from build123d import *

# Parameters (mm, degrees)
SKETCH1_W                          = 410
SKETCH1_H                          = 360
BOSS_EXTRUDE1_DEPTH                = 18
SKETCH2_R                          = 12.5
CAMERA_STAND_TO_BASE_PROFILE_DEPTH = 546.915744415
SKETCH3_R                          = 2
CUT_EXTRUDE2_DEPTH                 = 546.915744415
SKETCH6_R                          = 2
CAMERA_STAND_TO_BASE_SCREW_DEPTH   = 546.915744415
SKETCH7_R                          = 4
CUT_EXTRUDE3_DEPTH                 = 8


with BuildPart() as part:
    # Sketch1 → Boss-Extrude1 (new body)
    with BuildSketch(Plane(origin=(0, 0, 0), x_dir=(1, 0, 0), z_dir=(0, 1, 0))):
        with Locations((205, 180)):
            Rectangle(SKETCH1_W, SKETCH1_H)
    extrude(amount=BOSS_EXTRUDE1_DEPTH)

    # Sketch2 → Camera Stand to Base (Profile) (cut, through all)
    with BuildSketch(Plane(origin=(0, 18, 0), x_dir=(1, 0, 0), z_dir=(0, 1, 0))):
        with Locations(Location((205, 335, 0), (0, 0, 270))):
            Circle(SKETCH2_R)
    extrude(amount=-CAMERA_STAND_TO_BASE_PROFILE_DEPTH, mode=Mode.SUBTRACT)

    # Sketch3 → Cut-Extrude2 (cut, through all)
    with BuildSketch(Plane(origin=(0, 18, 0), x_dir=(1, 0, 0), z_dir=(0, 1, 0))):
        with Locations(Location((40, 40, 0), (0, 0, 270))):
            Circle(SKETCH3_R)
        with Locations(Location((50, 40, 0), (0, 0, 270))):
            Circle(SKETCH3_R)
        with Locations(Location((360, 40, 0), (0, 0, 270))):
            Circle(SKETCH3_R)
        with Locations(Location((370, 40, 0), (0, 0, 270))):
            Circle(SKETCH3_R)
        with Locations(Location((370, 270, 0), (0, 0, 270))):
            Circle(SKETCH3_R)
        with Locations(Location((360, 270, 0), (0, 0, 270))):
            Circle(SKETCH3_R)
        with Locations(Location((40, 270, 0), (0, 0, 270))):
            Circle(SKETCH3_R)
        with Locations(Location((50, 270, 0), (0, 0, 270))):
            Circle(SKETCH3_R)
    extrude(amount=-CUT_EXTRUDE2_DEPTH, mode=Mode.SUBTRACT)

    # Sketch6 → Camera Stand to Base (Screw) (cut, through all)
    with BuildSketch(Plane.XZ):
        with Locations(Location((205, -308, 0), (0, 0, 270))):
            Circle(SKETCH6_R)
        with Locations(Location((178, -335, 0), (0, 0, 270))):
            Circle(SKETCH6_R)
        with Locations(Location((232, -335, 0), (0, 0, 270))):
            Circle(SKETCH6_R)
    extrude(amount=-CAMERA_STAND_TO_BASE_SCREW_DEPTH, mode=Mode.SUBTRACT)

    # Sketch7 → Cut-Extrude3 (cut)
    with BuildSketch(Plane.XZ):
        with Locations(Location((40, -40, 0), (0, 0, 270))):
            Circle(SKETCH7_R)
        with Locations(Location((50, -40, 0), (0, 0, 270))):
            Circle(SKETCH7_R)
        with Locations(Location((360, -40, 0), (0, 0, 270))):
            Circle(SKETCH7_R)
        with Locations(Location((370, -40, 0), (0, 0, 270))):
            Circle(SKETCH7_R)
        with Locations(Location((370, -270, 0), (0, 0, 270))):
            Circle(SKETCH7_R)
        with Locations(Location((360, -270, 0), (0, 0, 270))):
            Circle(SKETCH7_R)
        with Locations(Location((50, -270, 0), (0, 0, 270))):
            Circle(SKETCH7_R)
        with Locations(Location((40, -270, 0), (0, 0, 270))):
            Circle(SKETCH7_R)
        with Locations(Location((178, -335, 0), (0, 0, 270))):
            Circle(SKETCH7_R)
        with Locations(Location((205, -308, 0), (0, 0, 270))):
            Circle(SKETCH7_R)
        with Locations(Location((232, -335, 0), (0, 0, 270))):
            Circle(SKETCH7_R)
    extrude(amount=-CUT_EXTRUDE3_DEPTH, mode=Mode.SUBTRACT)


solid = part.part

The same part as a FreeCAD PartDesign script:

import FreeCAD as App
import Part
import Sketcher

V = App.Vector


def add_polygon(sketch, points):
    """Adds a closed chain of lines whose ends are joined by coincident constraints."""
    first, n = sketch.GeometryCount, len(points)
    for a, b in zip(points, points[1:] + points[:1]):
        sketch.addGeometry(Part.LineSegment(App.Vector(*a, 0), App.Vector(*b, 0)), False)
    for i in range(n):
        sketch.addConstraint(Sketcher.Constraint("Coincident", first + i, 2, first + (i + 1) % n, 1))

doc = App.newDocument("Part")
body = doc.addObject("PartDesign::Body", "Body")

# Sketch on XZ plane
sketch1 = body.newObject("Sketcher::SketchObject", "Sketch")
sketch1.AttachmentSupport = (doc.getObject("XZ_Plane"), [""])
sketch1.MapMode = "FlatFace"
add_polygon(sketch1, [(0, -360), (0, 0), (410, 0), (410, -360)])  # lines 0-3
sketch1.addConstraint([
    Sketcher.Constraint("Vertical", 0),
    Sketcher.Constraint("Horizontal", 1),
    Sketcher.Constraint("Vertical", 2),
    Sketcher.Constraint("Horizontal", 3),
    Sketcher.Constraint("Coincident", 0, 2, -1, 1),
    Sketcher.Constraint("DistanceX", 1, 1, 1, 2, 410.0),
    Sketcher.Constraint("DistanceY", 0, 1, 0, 2, 360.0),
])
pad1 = body.newObject("PartDesign::Pad", "Pad")
pad1.Profile = sketch1
pad1.Length = 18
pad1.Reversed = True

# Sketch on XZ plane
sketch2 = body.newObject("Sketcher::SketchObject", "Sketch001")
sketch2.AttachmentSupport = (doc.getObject("XZ_Plane"), [""])
sketch2.MapMode = "FlatFace"
sketch2.AttachmentOffset = App.Placement(V(0, 0, -18), App.Rotation())
sketch2.addGeometry(Part.Circle(V(205, -335, 0), V(0, 0, 1), 12.5), False)
sketch2.addConstraint([
    Sketcher.Constraint("Diameter", 0, 25.0),
    Sketcher.Constraint("DistanceX", -1, 1, 0, 3, 205.0),
    Sketcher.Constraint("DistanceY", 0, 3, -1, 1, 335.0),
])
pocket1 = body.newObject("PartDesign::Pocket", "Pocket")
pocket1.Profile = sketch2
pocket1.Type = "ThroughAll"
pocket1.Reversed = True

# Sketch on XZ plane
sketch3 = body.newObject("Sketcher::SketchObject", "Sketch002")
sketch3.AttachmentSupport = (doc.getObject("XZ_Plane"), [""])
sketch3.MapMode = "FlatFace"
sketch3.AttachmentOffset = App.Placement(V(0, 0, -18), App.Rotation())
sketch3.addGeometry([
    Part.Circle(V(40, -40, 0), V(0, 0, 1), 2),  # 0
    Part.Circle(V(50, -40, 0), V(0, 0, 1), 2),  # 1
    Part.Circle(V(360, -40, 0), V(0, 0, 1), 2),  # 2
    Part.Circle(V(370, -40, 0), V(0, 0, 1), 2),  # 3
    Part.Circle(V(370, -270, 0), V(0, 0, 1), 2),  # 4
    Part.Circle(V(360, -270, 0), V(0, 0, 1), 2),  # 5
    Part.Circle(V(40, -270, 0), V(0, 0, 1), 2),  # 6
    Part.Circle(V(50, -270, 0), V(0, 0, 1), 2),  # 7
], False)
sketch3.addConstraint([
    Sketcher.Constraint("Equal", 0, 1),
    Sketcher.Constraint("Equal", 1, 2),
    Sketcher.Constraint("Equal", 2, 3),
    Sketcher.Constraint("Equal", 3, 4),
    Sketcher.Constraint("Equal", 4, 5),
    Sketcher.Constraint("Equal", 5, 6),
    Sketcher.Constraint("Equal", 6, 7),
    Sketcher.Constraint("Horizontal", 0, 3, 1, 3),
    Sketcher.Constraint("Horizontal", 1, 3, 2, 3),
    Sketcher.Constraint("Horizontal", 2, 3, 3, 3),
    Sketcher.Constraint("Horizontal", 4, 3, 5, 3),
    Sketcher.Constraint("Horizontal", 5, 3, 6, 3),
    Sketcher.Constraint("Horizontal", 6, 3, 7, 3),
    Sketcher.Constraint("Vertical", 3, 3, 4, 3),
    Sketcher.Constraint("Vertical", 2, 3, 5, 3),
    Sketcher.Constraint("Vertical", 0, 3, 6, 3),
    Sketcher.Constraint("Vertical", 1, 3, 7, 3),
    Sketcher.Constraint("Diameter", 0, 4.0),
    Sketcher.Constraint("DistanceX", -1, 1, 0, 3, 40.0),
    Sketcher.Constraint("DistanceY", 0, 3, -1, 1, 40.0),
    Sketcher.Constraint("DistanceX", -1, 1, 1, 3, 50.0),
    Sketcher.Constraint("DistanceX", -1, 1, 2, 3, 360.0),
    Sketcher.Constraint("DistanceX", -1, 1, 3, 3, 370.0),
    Sketcher.Constraint("DistanceY", 4, 3, -1, 1, 270.0),
])
pocket2 = body.newObject("PartDesign::Pocket", "Pocket001")
pocket2.Profile = sketch3
pocket2.Type = "ThroughAll"
pocket2.Reversed = True

# Sketch on XZ plane
sketch4 = body.newObject("Sketcher::SketchObject", "Sketch003")
sketch4.AttachmentSupport = (doc.getObject("XZ_Plane"), [""])
sketch4.MapMode = "FlatFace"
sketch4.addGeometry([
    Part.Circle(V(205, -308, 0), V(0, 0, 1), 2),
    Part.Circle(V(178, -335, 0), V(0, 0, 1), 2),
    Part.Circle(V(232, -335, 0), V(0, 0, 1), 2),
], False)
sketch4.addConstraint([
    Sketcher.Constraint("Equal", 0, 1),
    Sketcher.Constraint("Equal", 1, 2),
    Sketcher.Constraint("Horizontal", 1, 3, 2, 3),
    Sketcher.Constraint("Diameter", 0, 4.0),
    Sketcher.Constraint("DistanceX", -1, 1, 0, 3, 205.0),
    Sketcher.Constraint("DistanceY", 0, 3, -1, 1, 308.0),
    Sketcher.Constraint("DistanceX", -1, 1, 1, 3, 178.0),
    Sketcher.Constraint("DistanceY", 1, 3, -1, 1, 335.0),
    Sketcher.Constraint("DistanceX", -1, 1, 2, 3, 232.0),
])
pocket3 = body.newObject("PartDesign::Pocket", "Pocket002")
pocket3.Profile = sketch4
pocket3.Type = "ThroughAll"

# Sketch on XZ plane
sketch5 = body.newObject("Sketcher::SketchObject", "Sketch004")
sketch5.AttachmentSupport = (doc.getObject("XZ_Plane"), [""])
sketch5.MapMode = "FlatFace"
sketch5.addGeometry([
    Part.Circle(V(40, -40, 0), V(0, 0, 1), 4),  # 0
    Part.Circle(V(50, -40, 0), V(0, 0, 1), 4),  # 1
    Part.Circle(V(360, -40, 0), V(0, 0, 1), 4),  # 2
    Part.Circle(V(370, -40, 0), V(0, 0, 1), 4),  # 3
    Part.Circle(V(370, -270, 0), V(0, 0, 1), 4),  # 4
    Part.Circle(V(360, -270, 0), V(0, 0, 1), 4),  # 5
    Part.Circle(V(50, -270, 0), V(0, 0, 1), 4),  # 6
    Part.Circle(V(40, -270, 0), V(0, 0, 1), 4),  # 7
    Part.Circle(V(178, -335, 0), V(0, 0, 1), 4),  # 8
    Part.Circle(V(205, -308, 0), V(0, 0, 1), 4),  # 9
    Part.Circle(V(232, -335, 0), V(0, 0, 1), 4),  # 10
], False)
sketch5.addConstraint([
    Sketcher.Constraint("Equal", 0, 1),
    Sketcher.Constraint("Equal", 1, 2),
    Sketcher.Constraint("Equal", 2, 3),
    Sketcher.Constraint("Equal", 3, 4),
    Sketcher.Constraint("Equal", 4, 5),
    Sketcher.Constraint("Equal", 5, 6),
    Sketcher.Constraint("Equal", 6, 7),
    Sketcher.Constraint("Equal", 7, 8),
    Sketcher.Constraint("Equal", 8, 9),
    Sketcher.Constraint("Equal", 9, 10),
    Sketcher.Constraint("Horizontal", 0, 3, 1, 3),
    Sketcher.Constraint("Horizontal", 1, 3, 2, 3),
    Sketcher.Constraint("Horizontal", 2, 3, 3, 3),
    Sketcher.Constraint("Horizontal", 4, 3, 5, 3),
    Sketcher.Constraint("Horizontal", 5, 3, 6, 3),
    Sketcher.Constraint("Horizontal", 6, 3, 7, 3),
    Sketcher.Constraint("Horizontal", 8, 3, 10, 3),
    Sketcher.Constraint("Vertical", 3, 3, 4, 3),
    Sketcher.Constraint("Vertical", 2, 3, 5, 3),
    Sketcher.Constraint("Vertical", 1, 3, 6, 3),
    Sketcher.Constraint("Vertical", 0, 3, 7, 3),
    Sketcher.Constraint("Diameter", 0, 8.0),
    Sketcher.Constraint("DistanceX", -1, 1, 0, 3, 40.0),
    Sketcher.Constraint("DistanceY", 0, 3, -1, 1, 40.0),
    Sketcher.Constraint("DistanceX", -1, 1, 1, 3, 50.0),
    Sketcher.Constraint("DistanceX", -1, 1, 2, 3, 360.0),
    Sketcher.Constraint("DistanceX", -1, 1, 3, 3, 370.0),
    Sketcher.Constraint("DistanceY", 4, 3, -1, 1, 270.0),
    Sketcher.Constraint("DistanceX", -1, 1, 8, 3, 178.0),
    Sketcher.Constraint("DistanceY", 8, 3, -1, 1, 335.0),
    Sketcher.Constraint("DistanceX", -1, 1, 9, 3, 205.0),
    Sketcher.Constraint("DistanceY", 9, 3, -1, 1, 308.0),
    Sketcher.Constraint("DistanceX", -1, 1, 10, 3, 232.0),
])
pocket4 = body.newObject("PartDesign::Pocket", "Pocket003")
pocket4.Profile = sketch5
pocket4.Length = 8

doc.recompute()
